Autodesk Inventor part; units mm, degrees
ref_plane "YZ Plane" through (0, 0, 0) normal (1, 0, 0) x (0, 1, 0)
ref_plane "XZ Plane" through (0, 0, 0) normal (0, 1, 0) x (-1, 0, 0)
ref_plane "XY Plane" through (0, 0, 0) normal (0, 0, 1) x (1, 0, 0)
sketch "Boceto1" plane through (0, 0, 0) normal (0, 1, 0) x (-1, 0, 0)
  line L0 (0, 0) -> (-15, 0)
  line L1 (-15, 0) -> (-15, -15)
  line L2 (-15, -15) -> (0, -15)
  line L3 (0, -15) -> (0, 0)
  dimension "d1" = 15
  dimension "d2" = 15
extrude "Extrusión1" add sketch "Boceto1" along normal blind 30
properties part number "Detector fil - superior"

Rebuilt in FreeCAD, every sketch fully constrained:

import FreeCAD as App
import Part
import Sketcher

V = App.Vector


def add_polygon(sketch, points):
    """Adds a closed chain of lines whose ends are joined by coincident constraints."""
    first, n = sketch.GeometryCount, len(points)
    for a, b in zip(points, points[1:] + points[:1]):
        sketch.addGeometry(Part.LineSegment(App.Vector(*a, 0), App.Vector(*b, 0)), False)
    for i in range(n):
        sketch.addConstraint(Sketcher.Constraint("Coincident", first + i, 2, first + (i + 1) % n, 1))

doc = App.newDocument("Part")
body = doc.addObject("PartDesign::Body", "Body")

sketch1 = doc.addObject("Sketcher::SketchObject", "Sketch")
body.addObject(sketch1)
sketch1.AttachmentSupport = (doc.XZ_Plane, [""])
sketch1.MapMode = "FlatFace"
add_polygon(sketch1, [(0, -15), (0, 0), (15, 0), (15, -15)])
sketch1.addConstraint(Sketcher.Constraint("Vertical", 0))
sketch1.addConstraint(Sketcher.Constraint("Horizontal", 1))
sketch1.addConstraint(Sketcher.Constraint("Vertical", 2))
sketch1.addConstraint(Sketcher.Constraint("Horizontal", 3))
sketch1.addConstraint(Sketcher.Constraint("Coincident", 0, 2, -1, 1))
sketch1.addConstraint(Sketcher.Constraint("Equal", 3, 0))
sketch1.addConstraint(Sketcher.Constraint("DistanceX", 1, 1, 1, 2, 15.0))
pad1 = doc.addObject("PartDesign::Pad", "Pad")
body.addObject(pad1)
pad1.Profile = sketch1
pad1.Length = 30
pad1.Reversed = True

doc.recompute()
